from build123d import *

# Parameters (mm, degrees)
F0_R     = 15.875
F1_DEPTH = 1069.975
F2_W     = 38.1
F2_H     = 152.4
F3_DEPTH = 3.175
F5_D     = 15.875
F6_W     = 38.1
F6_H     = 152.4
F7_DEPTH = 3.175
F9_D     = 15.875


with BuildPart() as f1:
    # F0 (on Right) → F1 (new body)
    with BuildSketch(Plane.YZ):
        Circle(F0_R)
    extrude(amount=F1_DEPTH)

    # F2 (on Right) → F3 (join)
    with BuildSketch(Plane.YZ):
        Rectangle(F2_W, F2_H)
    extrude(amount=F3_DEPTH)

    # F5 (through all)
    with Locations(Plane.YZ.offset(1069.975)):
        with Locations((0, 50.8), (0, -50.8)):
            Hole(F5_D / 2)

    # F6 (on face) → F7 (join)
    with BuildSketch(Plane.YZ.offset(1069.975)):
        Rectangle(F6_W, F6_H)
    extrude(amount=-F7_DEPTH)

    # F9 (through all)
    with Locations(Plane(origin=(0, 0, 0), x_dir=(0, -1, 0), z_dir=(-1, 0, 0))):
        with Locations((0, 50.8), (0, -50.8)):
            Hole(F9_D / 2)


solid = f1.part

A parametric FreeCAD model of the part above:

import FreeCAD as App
import Part
import Sketcher
from FreeCAD import Vector
Q = App.Units.Quantity

doc = App.newDocument("Part")
body = doc.addObject("PartDesign::Body", "Body")

# Sketch on YZ plane
sketch1 = body.newObject("Sketcher::SketchObject", "Sketch")
sketch1.AttachmentSupport = (doc.getObject("YZ_Plane"), [""])
sketch1.MapMode = "FlatFace"
sketch1.addGeometry(Part.Circle(Vector(0, 0, 0), Vector(0, 0, 1), 16), False)
sketch1.addConstraint([
    Sketcher.Constraint("Coincident", 0, 3, -1, 1),
    Sketcher.Constraint("Diameter", 0, Q("1.25 in")),
])
pad1 = body.newObject("PartDesign::Pad", "Pad")
pad1.Profile = sketch1
pad1.Length = Q("42.125 in")

# Sketch on YZ plane
sketch2 = body.newObject("Sketcher::SketchObject", "Sketch001")
sketch2.AttachmentSupport = (doc.getObject("YZ_Plane"), [""])
sketch2.MapMode = "FlatFace"
sketch2.addGeometry([
    Part.LineSegment(Vector(-19, 76, 0), Vector(-19, -76, 0)),
    Part.LineSegment(Vector(-19, -76, 0), Vector(19, -76, 0)),
    Part.LineSegment(Vector(19, -76, 0), Vector(19, 76, 0)),
    Part.LineSegment(Vector(19, 76, 0), Vector(-19, 76, 0)),
], False)
sketch2.addConstraint([
    Sketcher.Constraint("Coincident", 0, 2, 1, 1),
    Sketcher.Constraint("Coincident", 1, 2, 2, 1),
    Sketcher.Constraint("Coincident", 2, 2, 3, 1),
    Sketcher.Constraint("Coincident", 3, 2, 0, 1),
    Sketcher.Constraint("Vertical", 0),
    Sketcher.Constraint("Horizontal", 1),
    Sketcher.Constraint("Vertical", 2),
    Sketcher.Constraint("Horizontal", 3),
    Sketcher.Constraint("Symmetric", 0, 2, 2, 2, -1, 1),
    Sketcher.Constraint("DistanceY", 0, 2, 0, 1, Q("6 in")),
    Sketcher.Constraint("DistanceX", 1, 1, 1, 2, Q("1.5 in")),
])
pad2 = body.newObject("PartDesign::Pad", "Pad001")
pad2.Profile = sketch2
pad2.Length = Q("0.125 in")

# Sketch on YZ plane
sketch3 = body.newObject("Sketcher::SketchObject", "Sketch002")
sketch3.AttachmentSupport = (doc.getObject("YZ_Plane"), [""])
sketch3.MapMode = "FlatFace"
sketch3.AttachmentOffset = App.Placement(Vector(0, 0, 42.125 * 25.4), App.Rotation())
sketch3.addGeometry([
    Part.Circle(Vector(0, 51, 0), Vector(0, 0, 1), 8),
    Part.Circle(Vector(0, -51, 0), Vector(0, 0, 1), 8),
], False)
sketch3.addConstraint([
    Sketcher.Constraint("Equal", 0, 1),
    Sketcher.Constraint("Symmetric", 0, 3, 1, 3, -1, 1),
    Sketcher.Constraint("PointOnObject", 0, 3, -2),
    Sketcher.Constraint("Diameter", 0, Q("0.625 in")),
    Sketcher.Constraint("DistanceY", -1, 1, 0, 3, Q("2 in")),
])
doc.recompute()
hole = body.newObject("PartDesign::Hole", "Hole")
hole.Profile = sketch3
hole.ThreadType = "None"
hole.Diameter = Q("0.625 in")
hole.DepthType = "ThroughAll"

# Sketch on YZ plane
sketch4 = body.newObject("Sketcher::SketchObject", "Sketch003")
sketch4.AttachmentSupport = (doc.getObject("YZ_Plane"), [""])
sketch4.MapMode = "FlatFace"
sketch4.AttachmentOffset = App.Placement(Vector(0, 0, 42.125 * 25.4), App.Rotation())
sketch4.addGeometry([
    Part.LineSegment(Vector(-19, 76, 0), Vector(-19, -76, 0)),
    Part.LineSegment(Vector(-19, -76, 0), Vector(19, -76, 0)),
    Part.LineSegment(Vector(19, -76, 0), Vector(19, 76, 0)),
    Part.LineSegment(Vector(19, 76, 0), Vector(-19, 76, 0)),
], False)
sketch4.addConstraint([
    Sketcher.Constraint("Coincident", 0, 2, 1, 1),
    Sketcher.Constraint("Coincident", 1, 2, 2, 1),
    Sketcher.Constraint("Coincident", 2, 2, 3, 1),
    Sketcher.Constraint("Coincident", 3, 2, 0, 1),
    Sketcher.Constraint("Vertical", 0),
    Sketcher.Constraint("Horizontal", 1),
    Sketcher.Constraint("Vertical", 2),
    Sketcher.Constraint("Horizontal", 3),
    Sketcher.Constraint("Symmetric", 0, 2, 2, 2, -1, 1),
    Sketcher.Constraint("DistanceY", 0, 2, 0, 1, Q("6 in")),
    Sketcher.Constraint("DistanceX", 1, 1, 1, 2, Q("1.5 in")),
])
pad3 = body.newObject("PartDesign::Pad", "Pad002")
pad3.Profile = sketch4
pad3.Length = Q("0.125 in")
pad3.Reversed = True

# Sketch on YZ plane
sketch5 = body.newObject("Sketcher::SketchObject", "Sketch004")
sketch5.AttachmentSupport = (doc.getObject("YZ_Plane"), [""])
sketch5.MapMode = "FlatFace"
sketch5.addGeometry([
    Part.Circle(Vector(0, 51, 0), Vector(0, 0, 1), 8),
    Part.Circle(Vector(0, -51, 0), Vector(0, 0, 1), 8),
], False)
sketch5.addConstraint([
    Sketcher.Constraint("Equal", 0, 1),
    Sketcher.Constraint("Symmetric", 0, 3, 1, 3, -1, 1),
    Sketcher.Constraint("PointOnObject", 0, 3, -2),
    Sketcher.Constraint("Diameter", 0, Q("0.625 in")),
    Sketcher.Constraint("DistanceY", -1, 1, 0, 3, Q("2 in")),
])
doc.recompute()
hole2 = body.newObject("PartDesign::Hole", "Hole001")
hole2.Profile = sketch5
hole2.ThreadType = "None"
hole2.Diameter = Q("0.625 in")
hole2.DepthType = "ThroughAll"
hole2.Reversed = True

doc.recompute()
